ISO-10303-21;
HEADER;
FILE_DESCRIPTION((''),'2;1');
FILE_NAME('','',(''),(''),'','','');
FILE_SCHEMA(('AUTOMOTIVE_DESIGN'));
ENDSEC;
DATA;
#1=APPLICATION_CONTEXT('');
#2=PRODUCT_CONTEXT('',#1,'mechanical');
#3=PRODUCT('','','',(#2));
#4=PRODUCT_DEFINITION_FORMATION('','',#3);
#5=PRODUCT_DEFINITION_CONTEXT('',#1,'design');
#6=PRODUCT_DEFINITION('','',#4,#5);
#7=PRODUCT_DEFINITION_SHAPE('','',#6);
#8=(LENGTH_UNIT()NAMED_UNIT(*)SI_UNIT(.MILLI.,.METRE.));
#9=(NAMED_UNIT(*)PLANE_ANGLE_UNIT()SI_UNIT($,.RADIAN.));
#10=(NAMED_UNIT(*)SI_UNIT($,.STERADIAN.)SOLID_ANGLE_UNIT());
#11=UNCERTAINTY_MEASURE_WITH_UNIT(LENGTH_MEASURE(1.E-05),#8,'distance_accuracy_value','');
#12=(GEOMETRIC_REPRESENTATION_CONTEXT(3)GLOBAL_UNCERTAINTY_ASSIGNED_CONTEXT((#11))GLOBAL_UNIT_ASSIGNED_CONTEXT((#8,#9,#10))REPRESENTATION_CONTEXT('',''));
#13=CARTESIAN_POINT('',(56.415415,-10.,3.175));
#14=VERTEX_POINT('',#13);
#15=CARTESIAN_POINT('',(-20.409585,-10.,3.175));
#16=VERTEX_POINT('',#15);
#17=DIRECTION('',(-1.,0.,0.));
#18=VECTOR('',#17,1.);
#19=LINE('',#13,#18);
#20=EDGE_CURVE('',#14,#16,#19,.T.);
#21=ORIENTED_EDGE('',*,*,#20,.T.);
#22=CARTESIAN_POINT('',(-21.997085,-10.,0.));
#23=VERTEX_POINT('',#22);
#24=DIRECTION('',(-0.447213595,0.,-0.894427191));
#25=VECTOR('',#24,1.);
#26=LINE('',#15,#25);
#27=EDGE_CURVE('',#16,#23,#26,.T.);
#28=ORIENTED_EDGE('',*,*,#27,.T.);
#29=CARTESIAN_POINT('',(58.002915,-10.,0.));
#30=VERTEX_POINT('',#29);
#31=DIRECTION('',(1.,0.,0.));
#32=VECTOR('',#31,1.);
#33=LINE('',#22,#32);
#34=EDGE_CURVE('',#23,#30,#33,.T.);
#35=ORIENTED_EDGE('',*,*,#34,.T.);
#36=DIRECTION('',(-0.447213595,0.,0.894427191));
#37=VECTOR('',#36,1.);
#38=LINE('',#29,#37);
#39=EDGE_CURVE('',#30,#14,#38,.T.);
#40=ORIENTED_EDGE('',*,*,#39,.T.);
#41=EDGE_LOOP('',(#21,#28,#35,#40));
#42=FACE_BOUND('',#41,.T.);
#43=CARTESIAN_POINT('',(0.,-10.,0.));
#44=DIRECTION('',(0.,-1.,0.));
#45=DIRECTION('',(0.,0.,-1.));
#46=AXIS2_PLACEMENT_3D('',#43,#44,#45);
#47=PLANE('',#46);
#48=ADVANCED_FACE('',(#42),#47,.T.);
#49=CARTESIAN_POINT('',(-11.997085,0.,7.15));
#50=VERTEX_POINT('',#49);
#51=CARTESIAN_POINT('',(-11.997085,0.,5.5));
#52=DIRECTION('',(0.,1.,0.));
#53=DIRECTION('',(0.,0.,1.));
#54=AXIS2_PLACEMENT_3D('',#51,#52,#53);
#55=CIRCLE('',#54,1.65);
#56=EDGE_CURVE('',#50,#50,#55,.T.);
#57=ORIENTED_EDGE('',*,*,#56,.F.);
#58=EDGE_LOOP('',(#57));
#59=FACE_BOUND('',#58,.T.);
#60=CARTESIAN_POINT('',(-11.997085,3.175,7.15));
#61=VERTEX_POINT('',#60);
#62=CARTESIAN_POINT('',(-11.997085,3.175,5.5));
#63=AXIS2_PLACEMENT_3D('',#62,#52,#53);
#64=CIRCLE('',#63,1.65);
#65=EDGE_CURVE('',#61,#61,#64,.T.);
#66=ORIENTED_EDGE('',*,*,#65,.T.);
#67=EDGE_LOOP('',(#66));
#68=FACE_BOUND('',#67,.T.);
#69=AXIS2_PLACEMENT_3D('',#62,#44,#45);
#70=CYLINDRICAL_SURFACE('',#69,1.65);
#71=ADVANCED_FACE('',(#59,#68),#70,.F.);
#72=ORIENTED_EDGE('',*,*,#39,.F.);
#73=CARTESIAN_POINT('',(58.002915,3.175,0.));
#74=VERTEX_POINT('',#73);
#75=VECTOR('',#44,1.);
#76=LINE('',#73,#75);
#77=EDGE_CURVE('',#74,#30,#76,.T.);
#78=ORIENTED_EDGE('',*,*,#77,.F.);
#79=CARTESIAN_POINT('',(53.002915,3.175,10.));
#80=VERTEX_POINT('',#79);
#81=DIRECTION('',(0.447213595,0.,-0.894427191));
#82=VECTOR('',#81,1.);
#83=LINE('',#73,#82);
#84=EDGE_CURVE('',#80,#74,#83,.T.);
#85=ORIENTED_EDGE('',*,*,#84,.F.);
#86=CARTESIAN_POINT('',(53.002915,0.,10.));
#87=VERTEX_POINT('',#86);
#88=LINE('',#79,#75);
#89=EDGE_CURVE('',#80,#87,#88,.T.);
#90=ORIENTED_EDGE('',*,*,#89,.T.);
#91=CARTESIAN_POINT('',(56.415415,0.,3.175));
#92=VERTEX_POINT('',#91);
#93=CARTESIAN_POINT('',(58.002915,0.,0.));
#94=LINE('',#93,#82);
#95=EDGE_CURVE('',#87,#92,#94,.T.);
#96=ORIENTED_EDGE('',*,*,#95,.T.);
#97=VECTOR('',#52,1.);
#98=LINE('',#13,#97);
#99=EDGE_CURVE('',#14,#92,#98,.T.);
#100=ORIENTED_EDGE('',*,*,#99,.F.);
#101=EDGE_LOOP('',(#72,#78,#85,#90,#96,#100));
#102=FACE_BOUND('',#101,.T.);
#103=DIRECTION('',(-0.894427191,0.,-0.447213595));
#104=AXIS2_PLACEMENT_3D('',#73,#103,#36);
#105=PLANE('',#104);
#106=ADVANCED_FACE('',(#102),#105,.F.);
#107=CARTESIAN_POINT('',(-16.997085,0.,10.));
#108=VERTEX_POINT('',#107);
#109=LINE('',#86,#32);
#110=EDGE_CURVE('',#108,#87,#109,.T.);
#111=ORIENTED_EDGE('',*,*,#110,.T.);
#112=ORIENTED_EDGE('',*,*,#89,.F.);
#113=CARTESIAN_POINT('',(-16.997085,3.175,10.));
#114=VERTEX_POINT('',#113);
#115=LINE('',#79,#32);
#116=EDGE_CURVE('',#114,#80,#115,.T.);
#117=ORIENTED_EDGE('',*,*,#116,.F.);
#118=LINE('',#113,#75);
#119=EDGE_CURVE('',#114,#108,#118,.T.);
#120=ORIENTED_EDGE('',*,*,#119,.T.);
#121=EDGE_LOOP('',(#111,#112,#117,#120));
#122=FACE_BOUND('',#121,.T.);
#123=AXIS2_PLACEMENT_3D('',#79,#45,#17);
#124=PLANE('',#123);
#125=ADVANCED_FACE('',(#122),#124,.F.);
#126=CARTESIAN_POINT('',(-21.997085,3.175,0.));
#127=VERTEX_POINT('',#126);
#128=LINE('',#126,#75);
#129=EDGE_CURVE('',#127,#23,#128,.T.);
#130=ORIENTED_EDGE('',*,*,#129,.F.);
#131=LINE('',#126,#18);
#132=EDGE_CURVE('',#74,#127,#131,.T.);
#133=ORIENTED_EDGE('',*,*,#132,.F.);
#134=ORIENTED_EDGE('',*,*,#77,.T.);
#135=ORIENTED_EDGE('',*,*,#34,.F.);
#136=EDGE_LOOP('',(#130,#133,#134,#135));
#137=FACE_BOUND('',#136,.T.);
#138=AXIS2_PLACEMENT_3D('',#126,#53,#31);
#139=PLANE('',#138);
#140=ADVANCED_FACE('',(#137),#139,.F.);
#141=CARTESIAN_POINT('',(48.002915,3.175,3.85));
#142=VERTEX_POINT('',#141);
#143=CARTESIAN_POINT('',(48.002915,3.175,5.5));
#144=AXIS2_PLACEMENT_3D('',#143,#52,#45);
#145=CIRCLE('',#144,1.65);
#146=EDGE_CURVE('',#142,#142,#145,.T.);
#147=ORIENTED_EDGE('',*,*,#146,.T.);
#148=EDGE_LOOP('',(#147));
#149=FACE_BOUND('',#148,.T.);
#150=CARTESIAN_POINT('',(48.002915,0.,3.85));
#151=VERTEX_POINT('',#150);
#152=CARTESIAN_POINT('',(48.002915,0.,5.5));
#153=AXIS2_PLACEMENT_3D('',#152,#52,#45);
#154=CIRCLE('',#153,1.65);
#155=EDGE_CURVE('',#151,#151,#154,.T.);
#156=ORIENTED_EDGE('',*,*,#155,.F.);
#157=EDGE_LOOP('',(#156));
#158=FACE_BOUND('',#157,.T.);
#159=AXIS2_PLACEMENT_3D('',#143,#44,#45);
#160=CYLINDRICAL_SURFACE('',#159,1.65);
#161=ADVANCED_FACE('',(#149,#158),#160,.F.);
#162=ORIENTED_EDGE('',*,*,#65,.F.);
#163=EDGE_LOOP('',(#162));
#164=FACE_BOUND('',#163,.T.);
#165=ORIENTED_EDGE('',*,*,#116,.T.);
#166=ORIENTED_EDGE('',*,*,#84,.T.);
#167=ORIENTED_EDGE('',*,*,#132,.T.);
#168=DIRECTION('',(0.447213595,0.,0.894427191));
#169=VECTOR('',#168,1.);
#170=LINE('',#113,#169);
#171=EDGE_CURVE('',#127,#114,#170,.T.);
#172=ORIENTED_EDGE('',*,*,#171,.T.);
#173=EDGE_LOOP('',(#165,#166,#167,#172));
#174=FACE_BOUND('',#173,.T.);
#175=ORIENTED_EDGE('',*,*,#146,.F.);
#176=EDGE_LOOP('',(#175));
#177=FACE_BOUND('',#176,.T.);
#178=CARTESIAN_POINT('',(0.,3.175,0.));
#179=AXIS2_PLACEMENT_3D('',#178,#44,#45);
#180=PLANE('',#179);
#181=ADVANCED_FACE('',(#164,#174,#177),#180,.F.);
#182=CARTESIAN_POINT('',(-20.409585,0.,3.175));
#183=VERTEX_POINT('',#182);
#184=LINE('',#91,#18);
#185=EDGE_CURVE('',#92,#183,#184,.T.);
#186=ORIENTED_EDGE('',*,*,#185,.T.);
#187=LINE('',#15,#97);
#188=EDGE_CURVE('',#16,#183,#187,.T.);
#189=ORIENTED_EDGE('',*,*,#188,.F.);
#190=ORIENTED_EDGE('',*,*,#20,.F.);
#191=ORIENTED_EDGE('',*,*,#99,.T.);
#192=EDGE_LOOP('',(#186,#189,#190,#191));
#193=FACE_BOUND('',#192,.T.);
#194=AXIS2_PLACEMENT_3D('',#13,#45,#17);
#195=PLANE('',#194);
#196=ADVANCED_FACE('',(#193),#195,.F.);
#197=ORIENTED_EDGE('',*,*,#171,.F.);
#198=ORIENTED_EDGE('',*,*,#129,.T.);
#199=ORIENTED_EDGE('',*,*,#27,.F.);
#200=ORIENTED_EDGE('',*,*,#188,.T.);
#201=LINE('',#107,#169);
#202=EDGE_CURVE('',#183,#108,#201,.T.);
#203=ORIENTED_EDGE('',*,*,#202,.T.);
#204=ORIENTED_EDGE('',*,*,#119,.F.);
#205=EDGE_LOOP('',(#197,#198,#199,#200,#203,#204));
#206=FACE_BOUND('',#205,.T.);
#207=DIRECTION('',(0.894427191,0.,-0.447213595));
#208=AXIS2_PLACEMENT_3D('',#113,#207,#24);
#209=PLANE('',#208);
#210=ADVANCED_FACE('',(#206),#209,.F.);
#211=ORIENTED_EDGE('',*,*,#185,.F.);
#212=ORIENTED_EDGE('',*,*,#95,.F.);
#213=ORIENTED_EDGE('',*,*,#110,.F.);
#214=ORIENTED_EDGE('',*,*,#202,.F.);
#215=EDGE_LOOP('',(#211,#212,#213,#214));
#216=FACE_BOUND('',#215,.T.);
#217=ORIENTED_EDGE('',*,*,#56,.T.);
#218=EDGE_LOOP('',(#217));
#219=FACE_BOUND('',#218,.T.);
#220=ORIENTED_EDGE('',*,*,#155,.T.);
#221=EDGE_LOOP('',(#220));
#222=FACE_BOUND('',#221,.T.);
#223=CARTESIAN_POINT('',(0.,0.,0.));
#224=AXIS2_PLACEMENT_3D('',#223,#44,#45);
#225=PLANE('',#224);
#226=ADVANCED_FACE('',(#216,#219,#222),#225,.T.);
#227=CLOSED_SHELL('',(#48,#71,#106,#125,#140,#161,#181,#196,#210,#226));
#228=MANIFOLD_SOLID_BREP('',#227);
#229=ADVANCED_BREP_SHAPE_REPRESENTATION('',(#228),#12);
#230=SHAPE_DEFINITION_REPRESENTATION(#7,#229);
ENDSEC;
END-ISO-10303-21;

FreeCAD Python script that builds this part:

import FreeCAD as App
import Part
import Sketcher

V = App.Vector

doc = App.newDocument("Part")
body = doc.addObject("PartDesign::Body", "Body")

sketch1 = body.newObject("Sketcher::SketchObject", "Sketch")
sketch1.AttachmentSupport = (doc.getObject("XZ_Plane"), [""])
sketch1.MapMode = "FlatFace"
sketch1.addGeometry([
    Part.LineSegment(V(58.002915, 0, 0), V(-21.997085, 0, 0)),
    Part.LineSegment(V(-21.997085, 0, 0), V(-16.997085, 10, 0)),
    Part.LineSegment(V(-16.997085, 10, 0), V(53.002915, 10, 0)),
    Part.LineSegment(V(53.002915, 10, 0), V(58.002915, 0, 0)),
    Part.Circle(V(48.002915, 5.5, 0), V(0, 0, 1), 1.65),
    Part.Circle(V(-11.997085, 5.5, 0), V(0, 0, 1), 1.65),
], False)
sketch1.addConstraint([
    Sketcher.Constraint("Coincident", 0, 2, 1, 1),
    Sketcher.Constraint("Coincident", 1, 2, 2, 1),
    Sketcher.Constraint("Coincident", 2, 2, 3, 1),
    Sketcher.Constraint("Coincident", 3, 2, 0, 1),
    Sketcher.Constraint("Horizontal", 0),
    Sketcher.Constraint("Horizontal", 2),
    Sketcher.Constraint("Equal", 4, 5),
    Sketcher.Constraint("PointOnObject", 0, 2, -1),
    Sketcher.Constraint("Horizontal", 4, 3, 5, 3),
    Sketcher.Constraint("Equal", 1, 3),
    Sketcher.Constraint("Diameter", 4, 3.3),
    Sketcher.Constraint("DistanceX", 0, 2, 0, 1, 80.0),
    Sketcher.Constraint("DistanceX", 2, 1, 2, 2, 70.0),
    Sketcher.Constraint("DistanceY", -1, 1, 1, 2, 10.0),
    Sketcher.Constraint("DistanceX", 5, 3, 4, 3, 60.0),
    Sketcher.Constraint("DistanceX", 0, 2, 5, 3, 10.0),
    Sketcher.Constraint("DistanceY", -1, 1, 4, 3, 5.5),
    Sketcher.Constraint("DistanceX", -1, 1, 4, 3, 48.002915),
])
pad1 = body.newObject("PartDesign::Pad", "Pad")
pad1.Profile = sketch1
pad1.Length = 3.175
pad1.Reversed = True

sketch2 = body.newObject("Sketcher::SketchObject", "Sketch001")
sketch2.AttachmentSupport = (doc.getObject("XZ_Plane"), [""])
sketch2.MapMode = "FlatFace"
sketch2.addGeometry([
    Part.LineSegment(V(58.002915, 0, 0), V(56.415415, 3.175, 0)),
    Part.LineSegment(V(56.415415, 3.175, 0), V(-20.409585, 3.175, 0)),
    Part.LineSegment(V(-20.409585, 3.175, 0), V(-21.997085, 0, 0)),
    Part.LineSegment(V(-21.997085, 0, 0), V(58.002915, 0, 0)),
], False)
sketch2.addConstraint([
    Sketcher.Constraint("Coincident", 0, 2, 1, 1),
    Sketcher.Constraint("Coincident", 1, 2, 2, 1),
    Sketcher.Constraint("Coincident", 2, 2, 3, 1),
    Sketcher.Constraint("Coincident", 3, 2, 0, 1),
    Sketcher.Constraint("Horizontal", 1),
    Sketcher.Constraint("Horizontal", 3),
    Sketcher.Constraint("PointOnObject", 2, 2, -1),
    Sketcher.Constraint("Equal", 0, 2),
    Sketcher.Constraint("DistanceX", 3, 1, 3, 2, 80.0),
    Sketcher.Constraint("DistanceX", 1, 2, 1, 1, 76.825),
    Sketcher.Constraint("DistanceY", -1, 1, 0, 2, 3.175),
    Sketcher.Constraint("DistanceX", -1, 1, 0, 2, 56.415415),
])
pad2 = body.newObject("PartDesign::Pad", "Pad001")
pad2.Profile = sketch2
pad2.Length = 10

doc.recompute()
